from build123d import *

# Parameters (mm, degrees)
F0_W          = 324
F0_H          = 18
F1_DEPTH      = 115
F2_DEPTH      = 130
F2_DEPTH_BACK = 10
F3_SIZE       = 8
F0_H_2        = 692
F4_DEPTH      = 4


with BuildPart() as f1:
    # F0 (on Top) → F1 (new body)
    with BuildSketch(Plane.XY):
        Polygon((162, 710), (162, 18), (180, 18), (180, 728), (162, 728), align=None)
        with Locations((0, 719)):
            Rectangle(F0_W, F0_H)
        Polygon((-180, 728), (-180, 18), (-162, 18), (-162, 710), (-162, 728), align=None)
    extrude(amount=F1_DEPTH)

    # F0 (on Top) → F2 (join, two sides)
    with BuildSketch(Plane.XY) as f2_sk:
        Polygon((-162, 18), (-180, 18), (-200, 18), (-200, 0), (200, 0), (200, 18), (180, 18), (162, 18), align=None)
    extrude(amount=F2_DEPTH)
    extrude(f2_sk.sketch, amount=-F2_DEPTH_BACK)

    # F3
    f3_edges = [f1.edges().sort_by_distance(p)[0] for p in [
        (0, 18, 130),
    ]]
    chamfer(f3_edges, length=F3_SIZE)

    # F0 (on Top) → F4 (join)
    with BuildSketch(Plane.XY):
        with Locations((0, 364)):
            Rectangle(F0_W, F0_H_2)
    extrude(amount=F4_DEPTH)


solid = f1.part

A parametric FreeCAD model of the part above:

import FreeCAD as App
import Part
import Sketcher
from FreeCAD import Vector
Q = App.Units.Quantity


def edges_at(feature, points):
    """Names of the edges that pass closest to the given points."""
    edges = feature.Shape.Edges
    near = lambda p: min(range(len(edges)), key=lambda i: edges[i].distToShape(Part.Vertex(*p))[0])
    return sorted({f"Edge{near(p) + 1}" for p in points})

doc = App.newDocument("Part")
params = doc.addObject("Spreadsheet::Sheet", "Params")
for row, (alias, value) in enumerate([
    ("sketch1_width", "18 mm"),
    ("sketch1_width2", "360 mm"),
    ("sketch1_height", "710 mm"),
    ("sketch1_height2", "692 mm"),
    ("pad1_length", "115 mm"),
    ("sketch2_width", "400 mm"),
    ("sketch2_height", "18 mm"),
    ("pad2_length", "130 mm"),
    ("pad2_length2", "10 mm"),
    ("chamfer_size", "8 mm"),
    ("sketch3_width", "324 mm"),
    ("sketch3_height", "692 mm"),
    ("pad3_length", "4 mm"),
], start=1):
    params.set(f"A{row}", alias)
    params.set(f"B{row}", "=" + value)
    params.setAlias(f"B{row}", alias)

body = doc.addObject("PartDesign::Body", "Body")

# Sketch on XY plane
sketch1 = body.newObject("Sketcher::SketchObject", "Sketch")
sketch1.AttachmentSupport = (doc.getObject("XY_Plane"), [""])
sketch1.MapMode = "FlatFace"
sketch1.addGeometry(Part.LineSegment(Vector(162, 18, 0), Vector(180, 18, 0)), False)
sketch1.addGeometry(Part.LineSegment(Vector(180, 18, 0), Vector(180, 728, 0)), False)
sketch1.addGeometry(Part.LineSegment(Vector(180, 728, 0), Vector(-180, 728, 0)), False)
sketch1.addGeometry(Part.LineSegment(Vector(-180, 728, 0), Vector(-180, 18, 0)), False)
sketch1.addGeometry(Part.LineSegment(Vector(-180, 18, 0), Vector(-162, 18, 0)), False)
sketch1.addGeometry(Part.LineSegment(Vector(-162, 18, 0), Vector(-162, 710, 0)), False)
sketch1.addGeometry(Part.LineSegment(Vector(-162, 710, 0), Vector(162, 710, 0)), False)
sketch1.addGeometry(Part.LineSegment(Vector(162, 710, 0), Vector(162, 18, 0)), False)
sketch1.addConstraint(Sketcher.Constraint("Coincident", 0, 2, 1, 1))
sketch1.addConstraint(Sketcher.Constraint("Coincident", 1, 2, 2, 1))
sketch1.addConstraint(Sketcher.Constraint("Coincident", 2, 2, 3, 1))
sketch1.addConstraint(Sketcher.Constraint("Coincident", 3, 2, 4, 1))
sketch1.addConstraint(Sketcher.Constraint("Coincident", 4, 2, 5, 1))
sketch1.addConstraint(Sketcher.Constraint("Coincident", 5, 2, 6, 1))
sketch1.addConstraint(Sketcher.Constraint("Coincident", 6, 2, 7, 1))
sketch1.addConstraint(Sketcher.Constraint("Coincident", 7, 2, 0, 1))
sketch1.addConstraint(Sketcher.Constraint("Horizontal", 0))
sketch1.addConstraint(Sketcher.Constraint("Vertical", 1))
sketch1.addConstraint(Sketcher.Constraint("Horizontal", 2))
sketch1.addConstraint(Sketcher.Constraint("Vertical", 3))
sketch1.addConstraint(Sketcher.Constraint("Horizontal", 4))
sketch1.addConstraint(Sketcher.Constraint("Vertical", 5))
sketch1.addConstraint(Sketcher.Constraint("Horizontal", 6))
sketch1.addConstraint(Sketcher.Constraint("Vertical", 7))
sketch1.addConstraint(Sketcher.Constraint("Symmetric", 0, 2, 3, 2, -2))
sketch1.addConstraint(Sketcher.Constraint("Equal", 0, 4))
sketch1.addConstraint(Sketcher.Constraint("DistanceX", 0, 1, 0, 2, Q("18 mm")))
sketch1.addConstraint(Sketcher.Constraint("DistanceX", 2, 2, 2, 1, Q("360 mm")))
sketch1.addConstraint(Sketcher.Constraint("DistanceY", 1, 1, 1, 2, Q("710 mm")))
sketch1.addConstraint(Sketcher.Constraint("DistanceY", 5, 1, 5, 2, Q("692 mm")))
sketch1.addConstraint(Sketcher.Constraint("DistanceY", -1, 1, 0, 2, Q("18 mm")))
sketch1.setExpression("Constraints[18]", "Params.sketch1_width")
sketch1.setExpression("Constraints[19]", "Params.sketch1_width2")
sketch1.setExpression("Constraints[20]", "Params.sketch1_height")
sketch1.setExpression("Constraints[21]", "Params.sketch1_height2")
pad1 = body.newObject("PartDesign::Pad", "Pad")
pad1.Profile = sketch1
pad1.setExpression("Length", "Params.pad1_length")

# Sketch on XY plane
sketch2 = body.newObject("Sketcher::SketchObject", "Sketch001")
sketch2.AttachmentSupport = (doc.getObject("XY_Plane"), [""])
sketch2.MapMode = "FlatFace"
sketch2.addGeometry(Part.LineSegment(Vector(-200, 18, 0), Vector(-200, 0, 0)), False)
sketch2.addGeometry(Part.LineSegment(Vector(-200, 0, 0), Vector(200, 0, 0)), False)
sketch2.addGeometry(Part.LineSegment(Vector(200, 0, 0), Vector(200, 18, 0)), False)
sketch2.addGeometry(Part.LineSegment(Vector(200, 18, 0), Vector(-200, 18, 0)), False)
sketch2.addConstraint(Sketcher.Constraint("Coincident", 0, 2, 1, 1))
sketch2.addConstraint(Sketcher.Constraint("Coincident", 1, 2, 2, 1))
sketch2.addConstraint(Sketcher.Constraint("Coincident", 2, 2, 3, 1))
sketch2.addConstraint(Sketcher.Constraint("Coincident", 3, 2, 0, 1))
sketch2.addConstraint(Sketcher.Constraint("Vertical", 0))
sketch2.addConstraint(Sketcher.Constraint("Horizontal", 1))
sketch2.addConstraint(Sketcher.Constraint("Vertical", 2))
sketch2.addConstraint(Sketcher.Constraint("Horizontal", 3))
sketch2.addConstraint(Sketcher.Constraint("Symmetric", 0, 2, 1, 2, -1, 1))
sketch2.addConstraint(Sketcher.Constraint("DistanceX", 1, 1, 1, 2, Q("400 mm")))
sketch2.addConstraint(Sketcher.Constraint("DistanceY", 0, 2, 0, 1, Q("18 mm")))
sketch2.setExpression("Constraints[9]", "Params.sketch2_width")
sketch2.setExpression("Constraints[10]", "Params.sketch2_height")
pad2 = body.newObject("PartDesign::Pad", "Pad001")
pad2.Profile = sketch2
pad2.Type = "TwoLengths"
pad2.setExpression("Length", "Params.pad2_length")
pad2.setExpression("Length2", "Params.pad2_length2")
doc.recompute()

chamfer = body.newObject("PartDesign::Chamfer", "Chamfer")
chamfer.Base = (pad2, edges_at(pad2, [(0, 18, 130)]))
chamfer.setExpression("Size", "Params.chamfer_size")

# Sketch on XY plane
sketch3 = body.newObject("Sketcher::SketchObject", "Sketch002")
sketch3.AttachmentSupport = (doc.getObject("XY_Plane"), [""])
sketch3.MapMode = "FlatFace"
sketch3.addGeometry(Part.LineSegment(Vector(-162, 710, 0), Vector(-162, 18, 0)), False)
sketch3.addGeometry(Part.LineSegment(Vector(-162, 18, 0), Vector(162, 18, 0)), False)
sketch3.addGeometry(Part.LineSegment(Vector(162, 18, 0), Vector(162, 710, 0)), False)
sketch3.addGeometry(Part.LineSegment(Vector(162, 710, 0), Vector(-162, 710, 0)), False)
sketch3.addConstraint(Sketcher.Constraint("Coincident", 0, 2, 1, 1))
sketch3.addConstraint(Sketcher.Constraint("Coincident", 1, 2, 2, 1))
sketch3.addConstraint(Sketcher.Constraint("Coincident", 2, 2, 3, 1))
sketch3.addConstraint(Sketcher.Constraint("Coincident", 3, 2, 0, 1))
sketch3.addConstraint(Sketcher.Constraint("Vertical", 0))
sketch3.addConstraint(Sketcher.Constraint("Horizontal", 1))
sketch3.addConstraint(Sketcher.Constraint("Vertical", 2))
sketch3.addConstraint(Sketcher.Constraint("Horizontal", 3))
sketch3.addConstraint(Sketcher.Constraint("DistanceX", 1, 1, 1, 2, Q("324 mm")))
sketch3.addConstraint(Sketcher.Constraint("DistanceY", 0, 2, 0, 1, Q("692 mm")))
sketch3.addConstraint(Sketcher.Constraint("DistanceX", 0, 2, -1, 1, Q("162 mm")))
sketch3.addConstraint(Sketcher.Constraint("DistanceY", -1, 1, 0, 2, Q("18 mm")))
sketch3.setExpression("Constraints[8]", "Params.sketch3_width")
sketch3.setExpression("Constraints[9]", "Params.sketch3_height")
pad3 = body.newObject("PartDesign::Pad", "Pad002")
pad3.Profile = sketch3
pad3.setExpression("Length", "Params.pad3_length")

doc.recompute()
